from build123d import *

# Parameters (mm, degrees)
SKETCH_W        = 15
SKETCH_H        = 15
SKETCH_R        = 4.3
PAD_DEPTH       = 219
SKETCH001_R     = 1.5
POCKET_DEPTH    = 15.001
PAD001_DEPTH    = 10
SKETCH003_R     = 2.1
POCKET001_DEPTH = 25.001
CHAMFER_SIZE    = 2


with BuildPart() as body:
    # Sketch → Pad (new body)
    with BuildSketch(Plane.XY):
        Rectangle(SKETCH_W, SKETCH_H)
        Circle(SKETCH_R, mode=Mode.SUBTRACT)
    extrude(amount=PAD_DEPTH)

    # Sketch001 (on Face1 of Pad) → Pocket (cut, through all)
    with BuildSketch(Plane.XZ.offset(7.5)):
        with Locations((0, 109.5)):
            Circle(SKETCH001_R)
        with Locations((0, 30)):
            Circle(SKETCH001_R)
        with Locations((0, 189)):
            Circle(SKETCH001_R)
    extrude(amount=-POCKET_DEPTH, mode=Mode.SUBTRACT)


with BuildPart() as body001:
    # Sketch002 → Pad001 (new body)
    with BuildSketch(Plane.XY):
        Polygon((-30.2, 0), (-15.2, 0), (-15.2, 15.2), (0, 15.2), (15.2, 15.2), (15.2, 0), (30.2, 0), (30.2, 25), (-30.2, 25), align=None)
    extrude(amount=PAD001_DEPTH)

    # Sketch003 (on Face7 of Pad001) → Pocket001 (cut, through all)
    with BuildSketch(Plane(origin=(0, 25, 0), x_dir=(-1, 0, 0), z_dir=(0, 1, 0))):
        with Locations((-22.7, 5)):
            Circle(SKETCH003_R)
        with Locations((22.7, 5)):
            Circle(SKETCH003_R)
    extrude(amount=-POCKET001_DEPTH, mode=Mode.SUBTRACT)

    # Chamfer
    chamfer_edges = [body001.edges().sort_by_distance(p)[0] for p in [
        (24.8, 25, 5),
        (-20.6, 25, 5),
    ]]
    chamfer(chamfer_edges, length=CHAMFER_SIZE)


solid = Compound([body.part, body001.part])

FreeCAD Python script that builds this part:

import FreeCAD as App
import Part
import Sketcher
Q = App.Units.Quantity


def edges_at(feature, points):
    """Names of the edges that pass closest to the given points."""
    edges = feature.Shape.Edges
    near = lambda p: min(range(len(edges)), key=lambda i: edges[i].distToShape(Part.Vertex(*p))[0])
    return sorted({f"Edge{near(p) + 1}" for p in points})

doc = App.newDocument("Part")
body = doc.addObject("PartDesign::Body", "Body")

# Sketch on XY plane
sketch1 = body.newObject("Sketcher::SketchObject", "Sketch")
sketch1.AttachmentSupport = (doc.getObject("XY_Plane"), [""])
sketch1.MapMode = "FlatFace"
sketch1.addGeometry([
    Part.LineSegment(App.Vector(-7.5, 7.5, 0), App.Vector(-7.5, -7.5, 0)),  # 0
    Part.LineSegment(App.Vector(-7.5, -7.5, 0), App.Vector(7.5, -7.5, 0)),  # 1
    Part.LineSegment(App.Vector(7.5, -7.5, 0), App.Vector(7.5, 7.5, 0)),  # 2
    Part.LineSegment(App.Vector(7.5, 7.5, 0), App.Vector(-7.5, 7.5, 0)),  # 3
    Part.Circle(App.Vector(0, 0, 0), App.Vector(0, 0, 1), 4.3),  # 4
], False)
sketch1.addConstraint([
    Sketcher.Constraint("Coincident", 0, 2, 1, 1),
    Sketcher.Constraint("Coincident", 1, 2, 2, 1),
    Sketcher.Constraint("Coincident", 2, 2, 3, 1),
    Sketcher.Constraint("Coincident", 3, 2, 0, 1),
    Sketcher.Constraint("Vertical", 0),
    Sketcher.Constraint("Horizontal", 1),
    Sketcher.Constraint("Vertical", 2),
    Sketcher.Constraint("Horizontal", 3),
    Sketcher.Constraint("Coincident", 4, 3, -1, 1),
    Sketcher.Constraint("Symmetric", 0, 2, 2, 2, -1, 1),
    Sketcher.Constraint("Equal", 3, 0),
    Sketcher.Constraint("Diameter", 4, Q("8.6 mm")),
    Sketcher.Constraint("DistanceX", 1, 1, 1, 2, Q("15 mm")),
])
pad1 = body.newObject("PartDesign::Pad", "Pad")
pad1.Profile = sketch1
pad1.Length = 219

# Sketch on XZ plane
sketch2 = body.newObject("Sketcher::SketchObject", "Sketch001")
sketch2.AttachmentSupport = (doc.getObject("XZ_Plane"), [""])
sketch2.MapMode = "FlatFace"
sketch2.AttachmentOffset = App.Placement(App.Vector(0, 0, 7.5), App.Rotation())
sketch2.addGeometry([
    Part.Circle(App.Vector(0, 109.5, 0), App.Vector(0, 0, 1), 1.5),
    Part.Circle(App.Vector(0, 30, 0), App.Vector(0, 0, 1), 1.5),
    Part.Circle(App.Vector(0, 189, 0), App.Vector(0, 0, 1), 1.5),
], False)
sketch2.addConstraint([
    Sketcher.Constraint("Equal", 0, 1),
    Sketcher.Constraint("Equal", 1, 2),
    Sketcher.Constraint("PointOnObject", 0, 3, -2),
    Sketcher.Constraint("PointOnObject", 1, 3, -2),
    Sketcher.Constraint("PointOnObject", 2, 3, -2),
    Sketcher.Constraint("Diameter", 0, Q("3 mm")),
    Sketcher.Constraint("DistanceY", -1, 1, 1, 3, Q("30 mm")),
    Sketcher.Constraint("DistanceY", -1, 1, 2, 3, Q("189 mm")),
    Sketcher.Constraint("DistanceY", -1, 1, 0, 3, Q("109.5 mm")),
])
pocket1 = body.newObject("PartDesign::Pocket", "Pocket")
pocket1.Profile = sketch2
pocket1.Type = "ThroughAll"
body2 = doc.addObject("PartDesign::Body", "Body001")

# Sketch on XY plane
sketch3 = body2.newObject("Sketcher::SketchObject", "Sketch002")
sketch3.AttachmentSupport = (doc.getObject("XY_Plane001"), [""])
sketch3.MapMode = "FlatFace"
sketch3.addGeometry([
    Part.LineSegment(App.Vector(-30.2, 0, 0), App.Vector(-15.2, 0, 0)),  # 0
    Part.LineSegment(App.Vector(-15.2, 0, 0), App.Vector(-15.2, 15.2, 0)),  # 1
    Part.LineSegment(App.Vector(-15.2, 15.2, 0), App.Vector(15.2, 15.2, 0)),  # 2
    Part.LineSegment(App.Vector(15.2, 15.2, 0), App.Vector(15.2, 0, 0)),  # 3
    Part.LineSegment(App.Vector(15.2, 0, 0), App.Vector(30.2, 0, 0)),  # 4
    Part.LineSegment(App.Vector(30.2, 0, 0), App.Vector(30.2, 25, 0)),  # 5
    Part.LineSegment(App.Vector(30.2, 25, 0), App.Vector(-30.2, 25, 0)),  # 6
    Part.LineSegment(App.Vector(-30.2, 25, 0), App.Vector(-30.2, 0, 0)),  # 7
], False)
sketch3.addConstraint([
    Sketcher.Constraint("Coincident", 0, 2, 1, 1),
    Sketcher.Constraint("Coincident", 1, 2, 2, 1),
    Sketcher.Constraint("Coincident", 2, 2, 3, 1),
    Sketcher.Constraint("Coincident", 3, 2, 4, 1),
    Sketcher.Constraint("Coincident", 4, 2, 5, 1),
    Sketcher.Constraint("Coincident", 5, 2, 6, 1),
    Sketcher.Constraint("Coincident", 6, 2, 7, 1),
    Sketcher.Constraint("Coincident", 7, 2, 0, 1),
    Sketcher.Constraint("Horizontal", 0),
    Sketcher.Constraint("Vertical", 1),
    Sketcher.Constraint("Horizontal", 2),
    Sketcher.Constraint("Vertical", 3),
    Sketcher.Constraint("Horizontal", 4),
    Sketcher.Constraint("Vertical", 5),
    Sketcher.Constraint("Horizontal", 6),
    Sketcher.Constraint("Vertical", 7),
    Sketcher.Constraint("Symmetric", 0, 2, 3, 2, -1, 1),
    Sketcher.Constraint("Symmetric", 4, 2, 7, 2, -2),
    Sketcher.Constraint("DistanceX", 0, 1, 0, 2, Q("15 mm")),
    Sketcher.Constraint("DistanceY", 5, 1, 5, 2, Q("25 mm")),
    Sketcher.Constraint("DistanceX", 2, 1, 2, 2, Q("30.4 mm")),
    Sketcher.Constraint("DistanceY", 1, 1, 1, 2, Q("15.2 mm")),
])
pad2 = body2.newObject("PartDesign::Pad", "Pad001")
pad2.Profile = sketch3
pad2.Length = 10

# Sketch on XZ plane
sketch4 = body2.newObject("Sketcher::SketchObject", "Sketch003")
sketch4.AttachmentSupport = (doc.getObject("XZ_Plane001"), [""])
sketch4.MapMode = "FlatFace"
sketch4.AttachmentOffset = App.Placement(App.Vector(0, 0, -25), App.Rotation())
sketch4.addGeometry([
    Part.Circle(App.Vector(22.7, 5, 0), App.Vector(0, 0, 1), 2.1),
    Part.Circle(App.Vector(-22.7, 5, 0), App.Vector(0, 0, 1), 2.1),
], False)
sketch4.addConstraint([
    Sketcher.Constraint("Equal", 0, 1),
    Sketcher.Constraint("Symmetric", 0, 3, 1, 3, -2),
    Sketcher.Constraint("Diameter", 0, Q("4.2 mm")),
    Sketcher.Constraint("DistanceY", -1, 1, 0, 3, Q("5 mm")),
    Sketcher.Constraint("DistanceX", -1, 1, 0, 3, Q("22.7 mm")),
])
pocket2 = body2.newObject("PartDesign::Pocket", "Pocket001")
pocket2.Profile = sketch4
pocket2.Type = "ThroughAll"
pocket2.Reversed = True
doc.recompute()

chamfer = body2.newObject("PartDesign::Chamfer", "Chamfer")
chamfer.Base = (pocket2, edges_at(pocket2, [(24.8, 25, 5), (-20.6, 25, 5)]))
chamfer.Size = 2

doc.recompute()
